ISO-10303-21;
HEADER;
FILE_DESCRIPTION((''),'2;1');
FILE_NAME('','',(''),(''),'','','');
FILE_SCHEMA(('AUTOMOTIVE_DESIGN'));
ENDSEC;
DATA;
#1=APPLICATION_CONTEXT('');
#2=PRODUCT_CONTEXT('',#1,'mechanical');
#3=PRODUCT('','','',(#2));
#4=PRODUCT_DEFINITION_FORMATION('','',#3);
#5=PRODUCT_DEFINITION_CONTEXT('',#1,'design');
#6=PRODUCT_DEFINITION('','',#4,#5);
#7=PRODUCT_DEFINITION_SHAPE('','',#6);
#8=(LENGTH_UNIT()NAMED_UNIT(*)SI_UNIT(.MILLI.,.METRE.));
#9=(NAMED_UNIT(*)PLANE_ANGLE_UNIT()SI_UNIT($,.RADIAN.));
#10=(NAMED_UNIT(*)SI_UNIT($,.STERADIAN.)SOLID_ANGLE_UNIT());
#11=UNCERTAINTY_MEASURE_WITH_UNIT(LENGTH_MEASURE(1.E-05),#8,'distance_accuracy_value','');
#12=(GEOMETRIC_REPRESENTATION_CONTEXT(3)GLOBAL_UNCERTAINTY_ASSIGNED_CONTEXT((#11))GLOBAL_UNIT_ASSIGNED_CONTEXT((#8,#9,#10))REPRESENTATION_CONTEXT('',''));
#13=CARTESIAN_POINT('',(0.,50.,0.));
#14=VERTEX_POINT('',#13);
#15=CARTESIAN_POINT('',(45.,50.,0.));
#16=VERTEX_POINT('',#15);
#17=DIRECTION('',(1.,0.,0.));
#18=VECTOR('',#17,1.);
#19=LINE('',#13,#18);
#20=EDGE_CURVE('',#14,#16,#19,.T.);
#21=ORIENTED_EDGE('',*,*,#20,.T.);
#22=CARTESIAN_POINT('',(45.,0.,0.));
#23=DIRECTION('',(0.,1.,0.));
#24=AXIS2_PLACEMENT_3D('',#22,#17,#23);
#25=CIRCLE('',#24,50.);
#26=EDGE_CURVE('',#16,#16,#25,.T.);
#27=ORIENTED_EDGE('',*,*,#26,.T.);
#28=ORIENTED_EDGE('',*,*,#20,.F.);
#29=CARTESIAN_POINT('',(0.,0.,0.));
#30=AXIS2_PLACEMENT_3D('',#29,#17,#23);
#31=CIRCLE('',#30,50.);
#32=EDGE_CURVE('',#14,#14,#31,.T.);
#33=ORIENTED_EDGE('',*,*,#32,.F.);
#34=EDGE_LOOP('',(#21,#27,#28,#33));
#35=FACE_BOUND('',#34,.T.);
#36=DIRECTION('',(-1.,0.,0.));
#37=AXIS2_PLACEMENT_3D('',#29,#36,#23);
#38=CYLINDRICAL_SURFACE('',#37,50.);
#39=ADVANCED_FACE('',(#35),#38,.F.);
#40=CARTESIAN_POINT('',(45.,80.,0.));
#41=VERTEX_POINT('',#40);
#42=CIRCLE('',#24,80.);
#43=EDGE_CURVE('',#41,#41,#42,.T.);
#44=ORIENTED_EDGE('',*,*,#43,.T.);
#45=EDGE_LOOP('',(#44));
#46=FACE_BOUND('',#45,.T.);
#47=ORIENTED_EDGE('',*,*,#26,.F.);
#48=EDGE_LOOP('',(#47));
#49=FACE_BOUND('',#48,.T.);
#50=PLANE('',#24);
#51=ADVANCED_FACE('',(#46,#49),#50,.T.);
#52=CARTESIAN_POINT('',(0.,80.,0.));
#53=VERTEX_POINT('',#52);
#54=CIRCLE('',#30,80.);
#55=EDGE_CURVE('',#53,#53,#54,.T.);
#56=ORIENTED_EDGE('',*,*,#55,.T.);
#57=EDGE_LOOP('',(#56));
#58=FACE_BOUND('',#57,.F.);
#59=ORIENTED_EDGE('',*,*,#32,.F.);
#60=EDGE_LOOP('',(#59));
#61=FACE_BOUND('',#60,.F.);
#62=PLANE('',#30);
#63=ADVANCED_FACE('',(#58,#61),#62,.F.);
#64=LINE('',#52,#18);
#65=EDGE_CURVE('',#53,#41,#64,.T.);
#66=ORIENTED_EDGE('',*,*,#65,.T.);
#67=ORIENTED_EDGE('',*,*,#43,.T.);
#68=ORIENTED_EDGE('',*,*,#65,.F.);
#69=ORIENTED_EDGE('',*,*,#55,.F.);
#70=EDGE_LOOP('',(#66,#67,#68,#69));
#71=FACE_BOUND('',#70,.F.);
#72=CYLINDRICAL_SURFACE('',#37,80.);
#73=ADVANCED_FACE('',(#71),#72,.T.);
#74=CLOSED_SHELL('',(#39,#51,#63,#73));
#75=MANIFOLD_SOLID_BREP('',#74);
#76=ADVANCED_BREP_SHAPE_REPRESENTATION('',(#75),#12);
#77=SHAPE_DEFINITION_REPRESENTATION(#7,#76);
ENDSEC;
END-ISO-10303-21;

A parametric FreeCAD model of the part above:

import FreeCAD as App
import Part
import Sketcher

doc = App.newDocument("Part")
body = doc.addObject("PartDesign::Body", "Body")

sketch1 = body.newObject("Sketcher::SketchObject", "Sketch")
sketch1.AttachmentSupport = (doc.getObject("YZ_Plane"), [""])
sketch1.MapMode = "FlatFace"
sketch1.addGeometry(Part.Circle(App.Vector(0, 0, 0), App.Vector(0, 0, 1), 80), False)
sketch1.addGeometry(Part.Circle(App.Vector(0, 0, 0), App.Vector(0, 0, 1), 50), False)
sketch1.addConstraint(Sketcher.Constraint("Coincident", 0, 3, -1, 1))
sketch1.addConstraint(Sketcher.Constraint("Coincident", 1, 3, -1, 1))
sketch1.addConstraint(Sketcher.Constraint("Diameter", 0, 160.0))
sketch1.addConstraint(Sketcher.Constraint("Diameter", 1, 100.0))
pad1 = body.newObject("PartDesign::Pad", "Pad")
pad1.Profile = sketch1
pad1.Length = 45

doc.recompute()
